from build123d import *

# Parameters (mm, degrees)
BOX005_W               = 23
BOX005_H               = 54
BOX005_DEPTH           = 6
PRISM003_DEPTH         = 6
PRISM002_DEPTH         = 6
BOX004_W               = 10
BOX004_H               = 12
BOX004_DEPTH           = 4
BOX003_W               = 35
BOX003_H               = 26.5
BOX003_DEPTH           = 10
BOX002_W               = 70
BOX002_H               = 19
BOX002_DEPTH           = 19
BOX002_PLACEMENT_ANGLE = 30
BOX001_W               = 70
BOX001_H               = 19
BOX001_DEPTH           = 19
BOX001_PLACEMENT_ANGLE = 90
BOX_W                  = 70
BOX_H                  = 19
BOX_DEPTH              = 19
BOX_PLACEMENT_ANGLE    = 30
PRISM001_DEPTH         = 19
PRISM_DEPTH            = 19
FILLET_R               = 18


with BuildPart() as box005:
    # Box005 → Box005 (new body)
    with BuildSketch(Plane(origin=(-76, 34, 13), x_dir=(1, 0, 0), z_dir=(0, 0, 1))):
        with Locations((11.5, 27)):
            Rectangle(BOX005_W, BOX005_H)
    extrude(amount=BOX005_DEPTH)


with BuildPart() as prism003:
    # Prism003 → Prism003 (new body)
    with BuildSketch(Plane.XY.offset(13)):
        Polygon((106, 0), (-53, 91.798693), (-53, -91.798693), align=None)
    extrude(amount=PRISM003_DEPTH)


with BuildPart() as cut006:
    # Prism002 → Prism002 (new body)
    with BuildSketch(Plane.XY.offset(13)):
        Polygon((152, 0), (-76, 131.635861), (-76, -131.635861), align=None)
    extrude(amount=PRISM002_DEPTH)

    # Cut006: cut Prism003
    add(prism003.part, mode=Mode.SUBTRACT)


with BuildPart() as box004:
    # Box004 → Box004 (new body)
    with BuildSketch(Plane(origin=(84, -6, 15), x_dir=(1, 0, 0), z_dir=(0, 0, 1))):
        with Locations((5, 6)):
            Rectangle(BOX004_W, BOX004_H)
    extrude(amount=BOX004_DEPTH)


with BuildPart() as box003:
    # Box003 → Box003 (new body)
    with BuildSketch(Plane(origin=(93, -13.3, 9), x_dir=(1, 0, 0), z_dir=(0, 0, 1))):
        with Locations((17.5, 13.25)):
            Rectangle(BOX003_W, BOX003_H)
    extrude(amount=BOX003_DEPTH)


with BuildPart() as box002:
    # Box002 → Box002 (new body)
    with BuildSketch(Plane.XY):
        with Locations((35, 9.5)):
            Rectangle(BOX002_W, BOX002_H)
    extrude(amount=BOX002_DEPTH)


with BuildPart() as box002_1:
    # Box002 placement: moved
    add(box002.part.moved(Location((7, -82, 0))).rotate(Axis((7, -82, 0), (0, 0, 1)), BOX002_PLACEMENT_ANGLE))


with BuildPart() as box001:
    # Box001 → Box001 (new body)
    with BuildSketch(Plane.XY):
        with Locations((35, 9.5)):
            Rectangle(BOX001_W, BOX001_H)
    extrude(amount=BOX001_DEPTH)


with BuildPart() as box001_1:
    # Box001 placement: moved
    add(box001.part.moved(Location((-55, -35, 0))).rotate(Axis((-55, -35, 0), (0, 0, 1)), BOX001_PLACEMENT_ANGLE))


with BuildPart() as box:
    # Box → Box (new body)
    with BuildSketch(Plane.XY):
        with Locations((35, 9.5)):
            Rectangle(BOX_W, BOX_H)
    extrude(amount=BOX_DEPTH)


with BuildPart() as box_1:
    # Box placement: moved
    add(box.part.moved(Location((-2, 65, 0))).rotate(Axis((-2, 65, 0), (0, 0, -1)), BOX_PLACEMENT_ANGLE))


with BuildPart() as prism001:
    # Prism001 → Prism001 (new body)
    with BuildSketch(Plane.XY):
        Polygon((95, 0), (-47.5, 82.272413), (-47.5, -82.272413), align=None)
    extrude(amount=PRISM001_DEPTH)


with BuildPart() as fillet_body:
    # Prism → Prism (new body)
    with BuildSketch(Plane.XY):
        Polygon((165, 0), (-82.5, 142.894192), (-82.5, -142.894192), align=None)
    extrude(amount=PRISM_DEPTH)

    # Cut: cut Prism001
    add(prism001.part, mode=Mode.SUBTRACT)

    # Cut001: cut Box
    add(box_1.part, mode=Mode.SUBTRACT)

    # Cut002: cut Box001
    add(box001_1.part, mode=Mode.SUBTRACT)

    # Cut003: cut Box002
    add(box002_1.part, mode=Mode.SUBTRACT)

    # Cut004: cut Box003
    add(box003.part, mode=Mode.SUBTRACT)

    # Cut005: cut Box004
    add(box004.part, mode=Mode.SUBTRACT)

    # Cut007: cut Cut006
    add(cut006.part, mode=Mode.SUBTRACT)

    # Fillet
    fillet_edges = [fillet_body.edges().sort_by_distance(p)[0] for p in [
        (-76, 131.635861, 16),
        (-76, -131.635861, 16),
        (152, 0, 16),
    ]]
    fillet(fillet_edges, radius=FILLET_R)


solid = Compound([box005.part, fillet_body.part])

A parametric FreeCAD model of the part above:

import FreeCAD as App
import Part
import Sketcher
from FreeCAD import Vector
Q = App.Units.Quantity


def edges_at(feature, points):
    """Names of the edges that pass closest to the given points."""
    edges = feature.Shape.Edges
    near = lambda p: min(range(len(edges)), key=lambda i: edges[i].distToShape(Part.Vertex(*p))[0])
    return sorted({f"Edge{near(p) + 1}" for p in points})

doc = App.newDocument("Part")
body = doc.addObject("PartDesign::Body", "Body")

sketch1 = doc.addObject("Sketcher::SketchObject", "Sketch")
body.addObject(sketch1)
sketch1.AttachmentSupport = (doc.XY_Plane, [""])
sketch1.MapMode = "FlatFace"
sketch1.AttachmentOffset = App.Placement(Vector(0, 0, 13), App.Rotation())
sketch1.addGeometry(Part.LineSegment(Vector(-76, 88, 0), Vector(-76, 34, 0)), False)
sketch1.addGeometry(Part.LineSegment(Vector(-76, 34, 0), Vector(-53, 34, 0)), False)
sketch1.addGeometry(Part.LineSegment(Vector(-53, 34, 0), Vector(-53, 88, 0)), False)
sketch1.addGeometry(Part.LineSegment(Vector(-53, 88, 0), Vector(-76, 88, 0)), False)
sketch1.addConstraint(Sketcher.Constraint("Coincident", 0, 2, 1, 1))
sketch1.addConstraint(Sketcher.Constraint("Coincident", 1, 2, 2, 1))
sketch1.addConstraint(Sketcher.Constraint("Coincident", 2, 2, 3, 1))
sketch1.addConstraint(Sketcher.Constraint("Coincident", 3, 2, 0, 1))
sketch1.addConstraint(Sketcher.Constraint("Vertical", 0))
sketch1.addConstraint(Sketcher.Constraint("Horizontal", 1))
sketch1.addConstraint(Sketcher.Constraint("Vertical", 2))
sketch1.addConstraint(Sketcher.Constraint("Horizontal", 3))
sketch1.addConstraint(Sketcher.Constraint("DistanceX", 1, 1, 1, 2, Q("23 mm")))
sketch1.addConstraint(Sketcher.Constraint("DistanceY", 0, 2, 0, 1, Q("54 mm")))
sketch1.addConstraint(Sketcher.Constraint("DistanceX", 0, 2, -1, 1, Q("76 mm")))
sketch1.addConstraint(Sketcher.Constraint("DistanceY", -1, 1, 0, 2, Q("34 mm")))
pad1 = doc.addObject("PartDesign::Pad", "Pad")
body.addObject(pad1)
pad1.Profile = sketch1
pad1.Length = 6
body2 = doc.addObject("PartDesign::Body", "Body001")

sketch2 = doc.addObject("Sketcher::SketchObject", "Sketch001")
body2.addObject(sketch2)
sketch2.AttachmentSupport = (doc.getObject("XY_Plane001"), [""])
sketch2.MapMode = "FlatFace"
sketch2.AttachmentOffset = App.Placement(Vector(0, 0, 13), App.Rotation())
sketch2.addGeometry(Part.LineSegment(Vector(106, 0, 0), Vector(-53, 92, 0)), False)
sketch2.addGeometry(Part.LineSegment(Vector(-53, 92, 0), Vector(-53, -92, 0)), False)
sketch2.addGeometry(Part.LineSegment(Vector(-53, -92, 0), Vector(106, 0, 0)), False)
sketch2.addConstraint(Sketcher.Constraint("Coincident", 0, 2, 1, 1))
sketch2.addConstraint(Sketcher.Constraint("Coincident", 1, 2, 2, 1))
sketch2.addConstraint(Sketcher.Constraint("Coincident", 2, 2, 0, 1))
sketch2.addConstraint(Sketcher.Constraint("Vertical", 1))
sketch2.addConstraint(Sketcher.Constraint("PointOnObject", 2, 2, -1))
sketch2.addConstraint(Sketcher.Constraint("Equal", 0, 2))
sketch2.addConstraint(Sketcher.Constraint("Angle", 0, Q("150 deg")))
sketch2.addConstraint(Sketcher.Constraint("DistanceX", 0, 2, -1, 1, Q("53 mm")))
sketch2.addConstraint(Sketcher.Constraint("DistanceX", -1, 1, 2, 2, Q("106 mm")))
pad2 = doc.addObject("PartDesign::Pad", "Pad001")
body2.addObject(pad2)
pad2.Profile = sketch2
pad2.Length = 6
body3 = doc.addObject("PartDesign::Body", "Body002")

sketch3 = doc.addObject("Sketcher::SketchObject", "Sketch002")
body3.addObject(sketch3)
sketch3.AttachmentSupport = (doc.getObject("XY_Plane002"), [""])
sketch3.MapMode = "FlatFace"
sketch3.AttachmentOffset = App.Placement(Vector(0, 0, 13), App.Rotation())
sketch3.addGeometry(Part.LineSegment(Vector(152, 0, 0), Vector(-76, 132, 0)), False)
sketch3.addGeometry(Part.LineSegment(Vector(-76, 132, 0), Vector(-76, -132, 0)), False)
sketch3.addGeometry(Part.LineSegment(Vector(-76, -132, 0), Vector(152, 0, 0)), False)
sketch3.addConstraint(Sketcher.Constraint("Coincident", 0, 2, 1, 1))
sketch3.addConstraint(Sketcher.Constraint("Coincident", 1, 2, 2, 1))
sketch3.addConstraint(Sketcher.Constraint("Coincident", 2, 2, 0, 1))
sketch3.addConstraint(Sketcher.Constraint("Vertical", 1))
sketch3.addConstraint(Sketcher.Constraint("PointOnObject", 2, 2, -1))
sketch3.addConstraint(Sketcher.Constraint("Equal", 0, 2))
sketch3.addConstraint(Sketcher.Constraint("Angle", 0, Q("150 deg")))
sketch3.addConstraint(Sketcher.Constraint("DistanceX", 0, 2, -1, 1, Q("76 mm")))
sketch3.addConstraint(Sketcher.Constraint("DistanceX", -1, 1, 2, 2, Q("152 mm")))
pad3 = doc.addObject("PartDesign::Pad", "Pad002")
body3.addObject(pad3)
pad3.Profile = sketch3
pad3.Length = 6
doc.recompute()

boolean = doc.addObject("PartDesign::Boolean", "Boolean")
body3.addObject(boolean)
boolean.Type = "Cut"
boolean.addObjects([body2])
body4 = doc.addObject("PartDesign::Body", "Body003")

sketch4 = doc.addObject("Sketcher::SketchObject", "Sketch003")
body4.addObject(sketch4)
sketch4.AttachmentSupport = (doc.getObject("XY_Plane003"), [""])
sketch4.MapMode = "FlatFace"
sketch4.AttachmentOffset = App.Placement(Vector(0, 0, 15), App.Rotation())
sketch4.addGeometry(Part.LineSegment(Vector(84, 6, 0), Vector(84, -6, 0)), False)
sketch4.addGeometry(Part.LineSegment(Vector(84, -6, 0), Vector(94, -6, 0)), False)
sketch4.addGeometry(Part.LineSegment(Vector(94, -6, 0), Vector(94, 6, 0)), False)
sketch4.addGeometry(Part.LineSegment(Vector(94, 6, 0), Vector(84, 6, 0)), False)
sketch4.addConstraint(Sketcher.Constraint("Coincident", 0, 2, 1, 1))
sketch4.addConstraint(Sketcher.Constraint("Coincident", 1, 2, 2, 1))
sketch4.addConstraint(Sketcher.Constraint("Coincident", 2, 2, 3, 1))
sketch4.addConstraint(Sketcher.Constraint("Coincident", 3, 2, 0, 1))
sketch4.addConstraint(Sketcher.Constraint("Vertical", 0))
sketch4.addConstraint(Sketcher.Constraint("Horizontal", 1))
sketch4.addConstraint(Sketcher.Constraint("Vertical", 2))
sketch4.addConstraint(Sketcher.Constraint("Horizontal", 3))
sketch4.addConstraint(Sketcher.Constraint("DistanceX", 1, 1, 1, 2, Q("10 mm")))
sketch4.addConstraint(Sketcher.Constraint("DistanceY", 0, 2, 0, 1, Q("12 mm")))
sketch4.addConstraint(Sketcher.Constraint("DistanceX", -1, 1, 0, 2, Q("84 mm")))
sketch4.addConstraint(Sketcher.Constraint("DistanceY", 0, 2, -1, 1, Q("6 mm")))
pad4 = doc.addObject("PartDesign::Pad", "Pad003")
body4.addObject(pad4)
pad4.Profile = sketch4
pad4.Length = 4
body5 = doc.addObject("PartDesign::Body", "Body004")

sketch5 = doc.addObject("Sketcher::SketchObject", "Sketch004")
body5.addObject(sketch5)
sketch5.AttachmentSupport = (doc.getObject("XY_Plane004"), [""])
sketch5.MapMode = "FlatFace"
sketch5.AttachmentOffset = App.Placement(Vector(0, 0, 9), App.Rotation())
sketch5.addGeometry(Part.LineSegment(Vector(93, 13, 0), Vector(93, -13, 0)), False)
sketch5.addGeometry(Part.LineSegment(Vector(93, -13, 0), Vector(128, -13, 0)), False)
sketch5.addGeometry(Part.LineSegment(Vector(128, -13, 0), Vector(128, 13, 0)), False)
sketch5.addGeometry(Part.LineSegment(Vector(128, 13, 0), Vector(93, 13, 0)), False)
sketch5.addConstraint(Sketcher.Constraint("Coincident", 0, 2, 1, 1))
sketch5.addConstraint(Sketcher.Constraint("Coincident", 1, 2, 2, 1))
sketch5.addConstraint(Sketcher.Constraint("Coincident", 2, 2, 3, 1))
sketch5.addConstraint(Sketcher.Constraint("Coincident", 3, 2, 0, 1))
sketch5.addConstraint(Sketcher.Constraint("Vertical", 0))
sketch5.addConstraint(Sketcher.Constraint("Horizontal", 1))
sketch5.addConstraint(Sketcher.Constraint("Vertical", 2))
sketch5.addConstraint(Sketcher.Constraint("Horizontal", 3))
sketch5.addConstraint(Sketcher.Constraint("DistanceX", 1, 1, 1, 2, Q("35 mm")))
sketch5.addConstraint(Sketcher.Constraint("DistanceY", 0, 2, 0, 1, Q("26.5 mm")))
sketch5.addConstraint(Sketcher.Constraint("DistanceX", -1, 1, 0, 2, Q("93 mm")))
sketch5.addConstraint(Sketcher.Constraint("DistanceY", 0, 2, -1, 1, Q("13.3 mm")))
pad5 = doc.addObject("PartDesign::Pad", "Pad004")
body5.addObject(pad5)
pad5.Profile = sketch5
pad5.Length = 10
body6 = doc.addObject("PartDesign::Body", "Body005")

sketch6 = doc.addObject("Sketcher::SketchObject", "Sketch005")
body6.addObject(sketch6)
sketch6.AttachmentSupport = (doc.getObject("XY_Plane005"), [""])
sketch6.MapMode = "FlatFace"
sketch6.addGeometry(Part.LineSegment(Vector(0, 19, 0), Vector(0, 0, 0)), False)
sketch6.addGeometry(Part.LineSegment(Vector(0, 0, 0), Vector(70, 0, 0)), False)
sketch6.addGeometry(Part.LineSegment(Vector(70, 0, 0), Vector(70, 19, 0)), False)
sketch6.addGeometry(Part.LineSegment(Vector(70, 19, 0), Vector(0, 19, 0)), False)
sketch6.addConstraint(Sketcher.Constraint("Coincident", 0, 2, 1, 1))
sketch6.addConstraint(Sketcher.Constraint("Coincident", 1, 2, 2, 1))
sketch6.addConstraint(Sketcher.Constraint("Coincident", 2, 2, 3, 1))
sketch6.addConstraint(Sketcher.Constraint("Coincident", 3, 2, 0, 1))
sketch6.addConstraint(Sketcher.Constraint("Vertical", 0))
sketch6.addConstraint(Sketcher.Constraint("Horizontal", 1))
sketch6.addConstraint(Sketcher.Constraint("Vertical", 2))
sketch6.addConstraint(Sketcher.Constraint("Horizontal", 3))
sketch6.addConstraint(Sketcher.Constraint("Coincident", 0, 2, -1, 1))
sketch6.addConstraint(Sketcher.Constraint("DistanceX", 1, 1, 1, 2, Q("70 mm")))
sketch6.addConstraint(Sketcher.Constraint("DistanceY", 0, 2, 0, 1, Q("19 mm")))
pad6 = doc.addObject("PartDesign::Pad", "Pad005")
body6.addObject(pad6)
pad6.Profile = sketch6
pad6.Length = 19
body7 = doc.addObject("PartDesign::Body", "Body006")
doc.recompute()

body6.Placement = App.Placement(Vector(7, -82, 0), App.Rotation(Vector(0, 0, 1), 30))
boolean2 = doc.addObject("PartDesign::Boolean", "Boolean001")
body7.addObject(boolean2)
boolean2.Type = "Fuse"
boolean2.addObjects([body6])
body8 = doc.addObject("PartDesign::Body", "Body007")

sketch7 = doc.addObject("Sketcher::SketchObject", "Sketch006")
body8.addObject(sketch7)
sketch7.AttachmentSupport = (doc.getObject("XY_Plane007"), [""])
sketch7.MapMode = "FlatFace"
sketch7.addGeometry(Part.LineSegment(Vector(0, 19, 0), Vector(0, 0, 0)), False)
sketch7.addGeometry(Part.LineSegment(Vector(0, 0, 0), Vector(70, 0, 0)), False)
sketch7.addGeometry(Part.LineSegment(Vector(70, 0, 0), Vector(70, 19, 0)), False)
sketch7.addGeometry(Part.LineSegment(Vector(70, 19, 0), Vector(0, 19, 0)), False)
sketch7.addConstraint(Sketcher.Constraint("Coincident", 0, 2, 1, 1))
sketch7.addConstraint(Sketcher.Constraint("Coincident", 1, 2, 2, 1))
sketch7.addConstraint(Sketcher.Constraint("Coincident", 2, 2, 3, 1))
sketch7.addConstraint(Sketcher.Constraint("Coincident", 3, 2, 0, 1))
sketch7.addConstraint(Sketcher.Constraint("Vertical", 0))
sketch7.addConstraint(Sketcher.Constraint("Horizontal", 1))
sketch7.addConstraint(Sketcher.Constraint("Vertical", 2))
sketch7.addConstraint(Sketcher.Constraint("Horizontal", 3))
sketch7.addConstraint(Sketcher.Constraint("Coincident", 0, 2, -1, 1))
sketch7.addConstraint(Sketcher.Constraint("DistanceX", 1, 1, 1, 2, Q("70 mm")))
sketch7.addConstraint(Sketcher.Constraint("DistanceY", 0, 2, 0, 1, Q("19 mm")))
pad7 = doc.addObject("PartDesign::Pad", "Pad006")
body8.addObject(pad7)
pad7.Profile = sketch7
pad7.Length = 19
body9 = doc.addObject("PartDesign::Body", "Body008")
doc.recompute()

body8.Placement = App.Placement(Vector(-55, -35, 0), App.Rotation(Vector(0, 0, 1), 90))
boolean3 = doc.addObject("PartDesign::Boolean", "Boolean002")
body9.addObject(boolean3)
boolean3.Type = "Fuse"
boolean3.addObjects([body8])
body10 = doc.addObject("PartDesign::Body", "Body009")

sketch8 = doc.addObject("Sketcher::SketchObject", "Sketch007")
body10.addObject(sketch8)
sketch8.AttachmentSupport = (doc.getObject("XY_Plane009"), [""])
sketch8.MapMode = "FlatFace"
sketch8.addGeometry(Part.LineSegment(Vector(0, 19, 0), Vector(0, 0, 0)), False)
sketch8.addGeometry(Part.LineSegment(Vector(0, 0, 0), Vector(70, 0, 0)), False)
sketch8.addGeometry(Part.LineSegment(Vector(70, 0, 0), Vector(70, 19, 0)), False)
sketch8.addGeometry(Part.LineSegment(Vector(70, 19, 0), Vector(0, 19, 0)), False)
sketch8.addConstraint(Sketcher.Constraint("Coincident", 0, 2, 1, 1))
sketch8.addConstraint(Sketcher.Constraint("Coincident", 1, 2, 2, 1))
sketch8.addConstraint(Sketcher.Constraint("Coincident", 2, 2, 3, 1))
sketch8.addConstraint(Sketcher.Constraint("Coincident", 3, 2, 0, 1))
sketch8.addConstraint(Sketcher.Constraint("Vertical", 0))
sketch8.addConstraint(Sketcher.Constraint("Horizontal", 1))
sketch8.addConstraint(Sketcher.Constraint("Vertical", 2))
sketch8.addConstraint(Sketcher.Constraint("Horizontal", 3))
sketch8.addConstraint(Sketcher.Constraint("Coincident", 0, 2, -1, 1))
sketch8.addConstraint(Sketcher.Constraint("DistanceX", 1, 1, 1, 2, Q("70 mm")))
sketch8.addConstraint(Sketcher.Constraint("DistanceY", 0, 2, 0, 1, Q("19 mm")))
pad8 = doc.addObject("PartDesign::Pad", "Pad007")
body10.addObject(pad8)
pad8.Profile = sketch8
pad8.Length = 19
body11 = doc.addObject("PartDesign::Body", "Body010")
doc.recompute()

body10.Placement = App.Placement(Vector(-2, 65, 0), App.Rotation(Vector(0, 0, -1), 30))
boolean4 = doc.addObject("PartDesign::Boolean", "Boolean003")
body11.addObject(boolean4)
boolean4.Type = "Fuse"
boolean4.addObjects([body10])
body12 = doc.addObject("PartDesign::Body", "Body011")

sketch9 = doc.addObject("Sketcher::SketchObject", "Sketch008")
body12.addObject(sketch9)
sketch9.AttachmentSupport = (doc.getObject("XY_Plane011"), [""])
sketch9.MapMode = "FlatFace"
sketch9.addGeometry(Part.LineSegment(Vector(95, 0, 0), Vector(-48, 82, 0)), False)
sketch9.addGeometry(Part.LineSegment(Vector(-48, 82, 0), Vector(-48, -82, 0)), False)
sketch9.addGeometry(Part.LineSegment(Vector(-48, -82, 0), Vector(95, 0, 0)), False)
sketch9.addConstraint(Sketcher.Constraint("Coincident", 0, 2, 1, 1))
sketch9.addConstraint(Sketcher.Constraint("Coincident", 1, 2, 2, 1))
sketch9.addConstraint(Sketcher.Constraint("Coincident", 2, 2, 0, 1))
sketch9.addConstraint(Sketcher.Constraint("Vertical", 1))
sketch9.addConstraint(Sketcher.Constraint("PointOnObject", 2, 2, -1))
sketch9.addConstraint(Sketcher.Constraint("Equal", 0, 2))
sketch9.addConstraint(Sketcher.Constraint("Angle", 0, Q("150 deg")))
sketch9.addConstraint(Sketcher.Constraint("DistanceX", -1, 1, 2, 2, Q("95 mm")))
sketch9.addConstraint(Sketcher.Constraint("DistanceX", 0, 2, -1, 1, Q("47.5 mm")))
pad9 = doc.addObject("PartDesign::Pad", "Pad008")
body12.addObject(pad9)
pad9.Profile = sketch9
pad9.Length = 19
body13 = doc.addObject("PartDesign::Body", "Body012")

sketch10 = doc.addObject("Sketcher::SketchObject", "Sketch009")
body13.addObject(sketch10)
sketch10.AttachmentSupport = (doc.getObject("XY_Plane012"), [""])
sketch10.MapMode = "FlatFace"
sketch10.addGeometry(Part.LineSegment(Vector(165, 0, 0), Vector(-82, 143, 0)), False)
sketch10.addGeometry(Part.LineSegment(Vector(-82, 143, 0), Vector(-82, -143, 0)), False)
sketch10.addGeometry(Part.LineSegment(Vector(-82, -143, 0), Vector(165, 0, 0)), False)
sketch10.addConstraint(Sketcher.Constraint("Coincident", 0, 2, 1, 1))
sketch10.addConstraint(Sketcher.Constraint("Coincident", 1, 2, 2, 1))
sketch10.addConstraint(Sketcher.Constraint("Coincident", 2, 2, 0, 1))
sketch10.addConstraint(Sketcher.Constraint("Vertical", 1))
sketch10.addConstraint(Sketcher.Constraint("PointOnObject", 2, 2, -1))
sketch10.addConstraint(Sketcher.Constraint("Equal", 0, 2))
sketch10.addConstraint(Sketcher.Constraint("Angle", 0, Q("150 deg")))
sketch10.addConstraint(Sketcher.Constraint("DistanceX", -1, 1, 2, 2, Q("165 mm")))
sketch10.addConstraint(Sketcher.Constraint("DistanceX", 0, 2, -1, 1, Q("82.5 mm")))
pad10 = doc.addObject("PartDesign::Pad", "Pad009")
body13.addObject(pad10)
pad10.Profile = sketch10
pad10.Length = 19
doc.recompute()

boolean5 = doc.addObject("PartDesign::Boolean", "Boolean004")
body13.addObject(boolean5)
boolean5.Type = "Cut"
boolean5.addObjects([body12])
doc.recompute()

boolean6 = doc.addObject("PartDesign::Boolean", "Boolean005")
body13.addObject(boolean6)
boolean6.Type = "Cut"
boolean6.addObjects([body11])
doc.recompute()

boolean7 = doc.addObject("PartDesign::Boolean", "Boolean006")
body13.addObject(boolean7)
boolean7.Type = "Cut"
boolean7.addObjects([body9])
doc.recompute()

boolean8 = doc.addObject("PartDesign::Boolean", "Boolean007")
body13.addObject(boolean8)
boolean8.Type = "Cut"
boolean8.addObjects([body7])
doc.recompute()

boolean9 = doc.addObject("PartDesign::Boolean", "Boolean008")
body13.addObject(boolean9)
boolean9.Type = "Cut"
boolean9.addObjects([body5])
doc.recompute()

boolean10 = doc.addObject("PartDesign::Boolean", "Boolean009")
body13.addObject(boolean10)
boolean10.Type = "Cut"
boolean10.addObjects([body4])
doc.recompute()

boolean11 = doc.addObject("PartDesign::Boolean", "Boolean010")
body13.addObject(boolean11)
boolean11.Type = "Cut"
boolean11.addObjects([body3])
doc.recompute()

fillet = doc.addObject("PartDesign::Fillet", "Fillet")
body13.addObject(fillet)
fillet.Base = (boolean11, edges_at(boolean11, [(-76, 131.636, 16), (-76, -131.636, 16), (152, 0, 16)]))
fillet.Radius = 18

doc.recompute()
